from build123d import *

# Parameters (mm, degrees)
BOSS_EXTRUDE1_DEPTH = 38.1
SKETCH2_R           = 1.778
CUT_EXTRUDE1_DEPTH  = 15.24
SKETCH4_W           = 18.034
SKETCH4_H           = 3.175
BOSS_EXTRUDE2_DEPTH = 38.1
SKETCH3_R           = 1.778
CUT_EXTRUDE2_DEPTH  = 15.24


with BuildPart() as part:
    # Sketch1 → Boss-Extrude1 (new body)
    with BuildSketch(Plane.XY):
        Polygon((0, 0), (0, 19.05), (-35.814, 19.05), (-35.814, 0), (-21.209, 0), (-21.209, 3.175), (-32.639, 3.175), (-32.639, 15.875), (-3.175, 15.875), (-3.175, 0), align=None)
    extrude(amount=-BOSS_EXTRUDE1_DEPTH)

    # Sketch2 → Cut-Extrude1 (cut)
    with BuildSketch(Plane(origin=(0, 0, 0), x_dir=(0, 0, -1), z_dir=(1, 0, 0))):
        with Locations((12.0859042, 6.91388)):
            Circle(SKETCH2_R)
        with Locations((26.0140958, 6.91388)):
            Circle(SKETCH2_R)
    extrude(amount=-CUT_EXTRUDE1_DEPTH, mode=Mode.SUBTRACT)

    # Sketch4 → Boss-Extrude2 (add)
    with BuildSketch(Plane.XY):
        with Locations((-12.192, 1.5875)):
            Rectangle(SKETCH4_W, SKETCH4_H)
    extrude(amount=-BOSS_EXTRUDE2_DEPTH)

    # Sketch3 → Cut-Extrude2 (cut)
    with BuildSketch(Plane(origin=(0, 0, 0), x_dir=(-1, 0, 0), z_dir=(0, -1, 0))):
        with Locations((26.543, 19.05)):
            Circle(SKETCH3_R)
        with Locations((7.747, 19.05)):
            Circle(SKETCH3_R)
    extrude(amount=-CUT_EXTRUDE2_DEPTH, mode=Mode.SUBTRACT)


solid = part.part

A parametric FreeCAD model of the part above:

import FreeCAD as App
import Part
import Sketcher
from FreeCAD import Vector
Q = App.Units.Quantity


def add_polygon(sketch, points):
    """Adds a closed chain of lines whose ends are joined by coincident constraints."""
    first, n = sketch.GeometryCount, len(points)
    for a, b in zip(points, points[1:] + points[:1]):
        sketch.addGeometry(Part.LineSegment(App.Vector(*a, 0), App.Vector(*b, 0)), False)
    for i in range(n):
        sketch.addConstraint(Sketcher.Constraint("Coincident", first + i, 2, first + (i + 1) % n, 1))

doc = App.newDocument("Part")
body = doc.addObject("PartDesign::Body", "Body")

sketch1 = body.newObject("Sketcher::SketchObject", "Sketch")
sketch1.AttachmentSupport = (doc.getObject("XY_Plane"), [""])
sketch1.MapMode = "FlatFace"
add_polygon(sketch1, [(0, 0), (0, 19.05), (-35.814, 19.05), (-35.814, 0), (-21.209, 0), (-21.209, 3.175), (-32.639, 3.175), (-32.639, 15.875), (-3.175, 15.875), (-3.175, 0)])
sketch1.addConstraint(Sketcher.Constraint("Vertical", 0))
sketch1.addConstraint(Sketcher.Constraint("Horizontal", 1))
sketch1.addConstraint(Sketcher.Constraint("Vertical", 2))
sketch1.addConstraint(Sketcher.Constraint("Horizontal", 3))
sketch1.addConstraint(Sketcher.Constraint("Vertical", 4))
sketch1.addConstraint(Sketcher.Constraint("Horizontal", 5))
sketch1.addConstraint(Sketcher.Constraint("Vertical", 6))
sketch1.addConstraint(Sketcher.Constraint("Horizontal", 7))
sketch1.addConstraint(Sketcher.Constraint("Vertical", 8))
sketch1.addConstraint(Sketcher.Constraint("Horizontal", 9))
sketch1.addConstraint(Sketcher.Constraint("Coincident", 9, 2, -1, 1))
sketch1.addConstraint(Sketcher.Constraint("PointOnObject", 2, 2, -1))
sketch1.addConstraint(Sketcher.Constraint("Equal", 9, 4))
sketch1.addConstraint(Sketcher.Constraint("DistanceY", 6, 1, 6, 2, Q("0.5 in")))
sketch1.addConstraint(Sketcher.Constraint("DistanceX", 1, 2, 1, 1, Q("1.41 in")))
sketch1.addConstraint(Sketcher.Constraint("DistanceX", 5, 2, 5, 1, Q("0.45 in")))
sketch1.addConstraint(Sketcher.Constraint("DistanceX", 7, 1, 7, 2, Q("1.16 in")))
sketch1.addConstraint(Sketcher.Constraint("DistanceY", 0, 1, 0, 2, Q("0.75 in")))
sketch1.addConstraint(Sketcher.Constraint("DistanceX", 3, 1, 3, 2, Q("0.575 in")))
pad1 = body.newObject("PartDesign::Pad", "Pad")
pad1.Profile = sketch1
pad1.Length = Q("1.5 in")
pad1.Reversed = True

sketch2 = body.newObject("Sketcher::SketchObject", "Sketch001")
sketch2.AttachmentSupport = (doc.getObject("YZ_Plane"), [""])
sketch2.MapMode = "FlatFace"
sketch2.addGeometry(Part.Circle(Vector(6.91388, -12.085904, 0), Vector(0, 0, 1), 1.778), False)
sketch2.addGeometry(Part.Circle(Vector(6.91388, -26.014096, 0), Vector(0, 0, 1), 1.778), False)
sketch2.addConstraint(Sketcher.Constraint("Equal", 0, 1))
sketch2.addConstraint(Sketcher.Constraint("Vertical", 0, 3, 1, 3))
sketch2.addConstraint(Sketcher.Constraint("Diameter", 0, Q("0.14 in")))
sketch2.addConstraint(Sketcher.Constraint("DistanceX", -1, 1, 0, 3, Q("0.2722 in")))
sketch2.addConstraint(Sketcher.Constraint("DistanceY", 1, 3, 0, 3, 13.928192))
sketch2.addConstraint(Sketcher.Constraint("DistanceY", 0, 3, -1, 1, 12.085904))
pocket1 = body.newObject("PartDesign::Pocket", "Pocket")
pocket1.Profile = sketch2
pocket1.Length = Q("0.6 in")

sketch3 = body.newObject("Sketcher::SketchObject", "Sketch002")
sketch3.AttachmentSupport = (doc.getObject("XY_Plane"), [""])
sketch3.MapMode = "FlatFace"
add_polygon(sketch3, [(-21.209, 3.175), (-21.209, 0), (-3.175, 0), (-3.175, 3.175)])
sketch3.addConstraint(Sketcher.Constraint("Vertical", 0))
sketch3.addConstraint(Sketcher.Constraint("Horizontal", 1))
sketch3.addConstraint(Sketcher.Constraint("Vertical", 2))
sketch3.addConstraint(Sketcher.Constraint("Horizontal", 3))
sketch3.addConstraint(Sketcher.Constraint("PointOnObject", 0, 2, -1))
sketch3.addConstraint(Sketcher.Constraint("DistanceX", 1, 1, 1, 2, Q("0.71 in")))
sketch3.addConstraint(Sketcher.Constraint("DistanceY", 0, 2, 0, 1, Q("0.125 in")))
sketch3.addConstraint(Sketcher.Constraint("DistanceX", 0, 2, -1, 1, Q("0.835 in")))
pad2 = body.newObject("PartDesign::Pad", "Pad001")
pad2.Profile = sketch3
pad2.Length = Q("1.5 in")
pad2.Reversed = True

sketch4 = body.newObject("Sketcher::SketchObject", "Sketch003")
sketch4.AttachmentSupport = (doc.getObject("XZ_Plane"), [""])
sketch4.MapMode = "FlatFace"
sketch4.addGeometry(Part.Circle(Vector(-26.543, -19.05, 0), Vector(0, 0, 1), 1.778), False)
sketch4.addGeometry(Part.Circle(Vector(-7.747, -19.05, 0), Vector(0, 0, 1), 1.778), False)
sketch4.addConstraint(Sketcher.Constraint("Equal", 0, 1))
sketch4.addConstraint(Sketcher.Constraint("Horizontal", 0, 3, 1, 3))
sketch4.addConstraint(Sketcher.Constraint("Diameter", 0, Q("0.14 in")))
sketch4.addConstraint(Sketcher.Constraint("DistanceY", 0, 3, -1, 1, Q("0.75 in")))
sketch4.addConstraint(Sketcher.Constraint("DistanceX", 0, 3, 1, 3, Q("0.74 in")))
sketch4.addConstraint(Sketcher.Constraint("DistanceX", 0, 3, -1, 1, Q("1.045 in")))
pocket2 = body.newObject("PartDesign::Pocket", "Pocket001")
pocket2.Profile = sketch4
pocket2.Length = Q("0.6 in")

doc.recompute()
